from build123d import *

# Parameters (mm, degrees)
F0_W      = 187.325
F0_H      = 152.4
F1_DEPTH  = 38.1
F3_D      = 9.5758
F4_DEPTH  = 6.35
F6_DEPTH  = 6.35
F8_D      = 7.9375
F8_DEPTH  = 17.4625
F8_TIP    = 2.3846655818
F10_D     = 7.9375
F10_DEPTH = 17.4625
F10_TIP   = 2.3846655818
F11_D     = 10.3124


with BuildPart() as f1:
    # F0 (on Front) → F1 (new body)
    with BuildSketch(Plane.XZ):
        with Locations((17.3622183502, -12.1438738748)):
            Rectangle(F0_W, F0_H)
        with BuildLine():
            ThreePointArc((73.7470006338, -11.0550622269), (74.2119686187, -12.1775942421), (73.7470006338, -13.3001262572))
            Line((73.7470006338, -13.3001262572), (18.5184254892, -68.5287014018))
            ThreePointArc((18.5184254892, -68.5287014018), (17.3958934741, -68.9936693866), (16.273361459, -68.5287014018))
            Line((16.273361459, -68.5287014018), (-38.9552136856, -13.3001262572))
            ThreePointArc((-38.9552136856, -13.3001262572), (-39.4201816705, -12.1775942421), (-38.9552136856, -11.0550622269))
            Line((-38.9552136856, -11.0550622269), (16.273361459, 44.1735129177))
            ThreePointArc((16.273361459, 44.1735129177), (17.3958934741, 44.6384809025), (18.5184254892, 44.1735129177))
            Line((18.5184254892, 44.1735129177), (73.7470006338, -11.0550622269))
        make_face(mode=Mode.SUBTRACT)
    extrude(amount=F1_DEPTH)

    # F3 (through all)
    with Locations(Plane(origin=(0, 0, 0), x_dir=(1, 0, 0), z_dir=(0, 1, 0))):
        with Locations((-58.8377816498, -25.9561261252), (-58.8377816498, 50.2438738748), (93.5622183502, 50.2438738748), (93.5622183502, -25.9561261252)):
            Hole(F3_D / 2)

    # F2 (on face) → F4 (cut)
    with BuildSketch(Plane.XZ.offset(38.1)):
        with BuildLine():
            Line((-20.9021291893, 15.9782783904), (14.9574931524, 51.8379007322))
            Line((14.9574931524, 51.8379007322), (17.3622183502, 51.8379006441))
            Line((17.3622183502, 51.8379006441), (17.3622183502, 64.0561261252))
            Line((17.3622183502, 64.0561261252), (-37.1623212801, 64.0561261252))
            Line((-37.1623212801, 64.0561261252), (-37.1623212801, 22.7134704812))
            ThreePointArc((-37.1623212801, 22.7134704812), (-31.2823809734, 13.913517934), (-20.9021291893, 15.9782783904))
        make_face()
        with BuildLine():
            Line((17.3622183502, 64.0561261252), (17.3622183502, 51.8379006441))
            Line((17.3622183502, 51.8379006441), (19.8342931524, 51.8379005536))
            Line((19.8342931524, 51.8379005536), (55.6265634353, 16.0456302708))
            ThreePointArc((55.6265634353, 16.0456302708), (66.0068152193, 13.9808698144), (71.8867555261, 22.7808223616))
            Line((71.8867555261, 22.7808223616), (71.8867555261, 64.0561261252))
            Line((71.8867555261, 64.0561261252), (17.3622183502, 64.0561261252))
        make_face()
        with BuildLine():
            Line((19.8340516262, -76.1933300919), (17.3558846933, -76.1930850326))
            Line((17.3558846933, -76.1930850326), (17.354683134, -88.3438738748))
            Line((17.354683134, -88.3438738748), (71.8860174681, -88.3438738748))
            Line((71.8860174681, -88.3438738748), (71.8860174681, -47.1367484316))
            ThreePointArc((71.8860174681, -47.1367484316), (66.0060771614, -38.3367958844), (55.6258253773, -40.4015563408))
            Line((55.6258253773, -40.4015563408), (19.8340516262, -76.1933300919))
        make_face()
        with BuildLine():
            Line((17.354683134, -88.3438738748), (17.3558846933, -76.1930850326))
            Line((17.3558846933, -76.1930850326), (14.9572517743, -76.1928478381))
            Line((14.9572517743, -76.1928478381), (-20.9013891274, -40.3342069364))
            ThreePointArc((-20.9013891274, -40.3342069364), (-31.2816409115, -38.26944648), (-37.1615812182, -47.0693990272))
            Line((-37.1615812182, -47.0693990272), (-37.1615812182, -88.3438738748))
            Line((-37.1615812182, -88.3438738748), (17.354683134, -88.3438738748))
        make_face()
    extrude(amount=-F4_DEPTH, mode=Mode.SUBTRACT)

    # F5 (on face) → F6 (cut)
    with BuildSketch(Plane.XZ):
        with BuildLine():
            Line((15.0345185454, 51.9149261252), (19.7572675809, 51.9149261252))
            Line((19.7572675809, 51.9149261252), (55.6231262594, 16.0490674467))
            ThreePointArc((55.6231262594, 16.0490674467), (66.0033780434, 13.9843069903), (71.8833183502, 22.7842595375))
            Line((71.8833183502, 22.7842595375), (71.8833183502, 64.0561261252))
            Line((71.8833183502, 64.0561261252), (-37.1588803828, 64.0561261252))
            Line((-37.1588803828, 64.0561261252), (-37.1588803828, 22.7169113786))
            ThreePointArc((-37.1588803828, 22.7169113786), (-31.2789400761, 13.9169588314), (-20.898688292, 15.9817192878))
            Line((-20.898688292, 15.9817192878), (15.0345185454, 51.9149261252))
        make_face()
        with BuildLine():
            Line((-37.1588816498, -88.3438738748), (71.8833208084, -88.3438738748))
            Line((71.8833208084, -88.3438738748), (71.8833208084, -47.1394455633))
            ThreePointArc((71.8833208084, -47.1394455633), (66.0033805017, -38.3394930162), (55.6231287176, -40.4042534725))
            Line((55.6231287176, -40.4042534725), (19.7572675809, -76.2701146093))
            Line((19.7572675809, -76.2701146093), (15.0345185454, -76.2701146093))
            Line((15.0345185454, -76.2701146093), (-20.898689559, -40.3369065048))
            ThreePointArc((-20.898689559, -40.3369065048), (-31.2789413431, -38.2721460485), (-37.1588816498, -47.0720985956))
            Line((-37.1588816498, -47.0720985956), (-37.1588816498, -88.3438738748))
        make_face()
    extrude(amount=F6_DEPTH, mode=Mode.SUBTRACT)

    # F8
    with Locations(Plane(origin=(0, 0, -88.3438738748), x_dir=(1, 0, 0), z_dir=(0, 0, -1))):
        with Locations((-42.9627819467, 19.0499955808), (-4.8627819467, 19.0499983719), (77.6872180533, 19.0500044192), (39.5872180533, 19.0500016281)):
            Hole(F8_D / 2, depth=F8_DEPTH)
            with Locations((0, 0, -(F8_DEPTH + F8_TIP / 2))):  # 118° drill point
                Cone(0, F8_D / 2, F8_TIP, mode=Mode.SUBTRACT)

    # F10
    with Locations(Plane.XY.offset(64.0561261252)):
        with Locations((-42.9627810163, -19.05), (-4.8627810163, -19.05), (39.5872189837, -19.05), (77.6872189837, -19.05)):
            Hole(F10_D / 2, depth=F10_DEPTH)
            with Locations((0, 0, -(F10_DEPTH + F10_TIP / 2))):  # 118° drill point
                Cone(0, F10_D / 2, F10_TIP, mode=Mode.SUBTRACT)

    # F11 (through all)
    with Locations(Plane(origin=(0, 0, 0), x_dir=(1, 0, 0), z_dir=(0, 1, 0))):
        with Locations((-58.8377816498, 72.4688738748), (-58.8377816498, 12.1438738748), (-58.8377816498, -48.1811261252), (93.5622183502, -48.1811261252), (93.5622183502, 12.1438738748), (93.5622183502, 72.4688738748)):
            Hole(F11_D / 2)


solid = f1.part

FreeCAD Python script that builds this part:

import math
import FreeCAD as App
import Part
import Sketcher
Q = App.Units.Quantity


def add_polygon(sketch, points):
    """Adds a closed chain of lines whose ends are joined by coincident constraints."""
    first, n = sketch.GeometryCount, len(points)
    for a, b in zip(points, points[1:] + points[:1]):
        sketch.addGeometry(Part.LineSegment(App.Vector(*a, 0), App.Vector(*b, 0)), False)
    for i in range(n):
        sketch.addConstraint(Sketcher.Constraint("Coincident", first + i, 2, first + (i + 1) % n, 1))

doc = App.newDocument("Part")
body = doc.addObject("PartDesign::Body", "Body")

sketch1 = body.newObject("Sketcher::SketchObject", "Sketch")
sketch1.AttachmentSupport = (doc.getObject("XZ_Plane"), [""])
sketch1.MapMode = "FlatFace"
add_polygon(sketch1, [(-76.3, 64.1), (-76.3, -88.3), (111, -88.3), (111, 64.1)])
sketch1.addGeometry(Part.LineSegment(App.Vector(18.5, 44.2, 0), App.Vector(73.7, -11.1, 0)), False)
sketch1.addGeometry(Part.ArcOfCircle(Part.Circle(App.Vector(72.6, -12.2, 0), App.Vector(0, 0, 1), 1.6), math.radians(-45), math.radians(45)), False)
sketch1.addGeometry(Part.LineSegment(App.Vector(73.7, -13.3, 0), App.Vector(18.5, -68.5, 0)), False)
sketch1.addGeometry(Part.ArcOfCircle(Part.Circle(App.Vector(17.4, -67.4, 0), App.Vector(0, 0, 1), 1.6), math.radians(-135), math.radians(-45)), False)
sketch1.addGeometry(Part.LineSegment(App.Vector(16.3, -68.5, 0), App.Vector(-39, -13.3, 0)), False)
sketch1.addGeometry(Part.ArcOfCircle(Part.Circle(App.Vector(-37.8, -12.2, 0), App.Vector(0, 0, 1), 1.6), math.radians(135), math.radians(225)), False)
sketch1.addGeometry(Part.LineSegment(App.Vector(-39, -11.1, 0), App.Vector(16.3, 44.2, 0)), False)
sketch1.addGeometry(Part.ArcOfCircle(Part.Circle(App.Vector(17.4, 43.1, 0), App.Vector(0, 0, 1), 1.6), math.radians(45), math.radians(135)), False)
sketch1.addConstraint([
    Sketcher.Constraint("Tangent", 4, 2, 5, 2),
    Sketcher.Constraint("Tangent", 5, 1, 6, 1),
    Sketcher.Constraint("Tangent", 6, 2, 7, 2),
    Sketcher.Constraint("Tangent", 7, 1, 8, 1),
    Sketcher.Constraint("Tangent", 8, 2, 9, 2),
    Sketcher.Constraint("Tangent", 9, 1, 10, 1),
    Sketcher.Constraint("Tangent", 10, 2, 11, 2),
    Sketcher.Constraint("Tangent", 11, 1, 4, 1),
    Sketcher.Constraint("Vertical", 0),
    Sketcher.Constraint("Horizontal", 1),
    Sketcher.Constraint("Vertical", 2),
    Sketcher.Constraint("Horizontal", 3),
    Sketcher.Constraint("Equal", 5, 7),
    Sketcher.Constraint("Equal", 7, 9),
    Sketcher.Constraint("Equal", 9, 11),
    Sketcher.Constraint("Perpendicular", 4, 6),
    Sketcher.Constraint("Perpendicular", 6, 8),
    Sketcher.Constraint("Perpendicular", 8, 10),
    Sketcher.Constraint("Horizontal", 5, 3, 9, 3),
    Sketcher.Constraint("Horizontal", 6, 2, 7, 1),
    Sketcher.Constraint("DistanceY", 0, 2, 0, 1, Q("6 in")),
    Sketcher.Constraint("Radius", 5, Q("0.0625 in")),
    Sketcher.Constraint("DistanceX", 1, 1, 1, 2, Q("7.375 in")),
    Sketcher.Constraint("Distance", 4, Q("3.075 in")),
    Sketcher.Constraint("DistanceX", -1, 1, 4, 2, 73.747001),
    Sketcher.Constraint("DistanceY", 6, 2, -1, 1, 68.528701),
    Sketcher.Constraint("DistanceX", 0, 2, 9, 3, 38.4676),
    Sketcher.Constraint("DistanceY", 0, 2, 9, 3, 76.16628),
])
pad1 = body.newObject("PartDesign::Pad", "Pad")
pad1.Profile = sketch1
pad1.Length = Q("1.5 in")

sketch2 = body.newObject("Sketcher::SketchObject", "Sketch001")
sketch2.AttachmentSupport = (doc.getObject("XZ_Plane"), [""])
sketch2.MapMode = "FlatFace"
sketch2.addGeometry([
    Part.Circle(App.Vector(-58.8, 26, 0), App.Vector(0, 0, 1), 4.8),
    Part.Circle(App.Vector(-58.8, -50.2, 0), App.Vector(0, 0, 1), 4.8),
    Part.Circle(App.Vector(93.6, -50.2, 0), App.Vector(0, 0, 1), 4.8),
    Part.Circle(App.Vector(93.6, 26, 0), App.Vector(0, 0, 1), 4.8),
], False)
sketch2.addConstraint([
    Sketcher.Constraint("Equal", 0, 1),
    Sketcher.Constraint("Equal", 1, 2),
    Sketcher.Constraint("Equal", 2, 3),
    Sketcher.Constraint("Horizontal", 1, 3, 2, 3),
    Sketcher.Constraint("Horizontal", 0, 3, 3, 3),
    Sketcher.Constraint("Vertical", 0, 3, 1, 3),
    Sketcher.Constraint("Vertical", 2, 3, 3, 3),
    Sketcher.Constraint("Diameter", 0, Q("0.377 in")),
    Sketcher.Constraint("DistanceY", 1, 3, 0, 3, Q("3 in")),
    Sketcher.Constraint("DistanceX", 1, 3, 2, 3, Q("6 in")),
    Sketcher.Constraint("DistanceX", 0, 3, -1, 1, 58.837782),
    Sketcher.Constraint("DistanceY", -1, 1, 0, 3, 25.956126),
])
doc.recompute()
hole = body.newObject("PartDesign::Hole", "Hole")
hole.Profile = sketch2
hole.ThreadType = "None"
hole.Diameter = Q("0.377 in")
hole.DepthType = "ThroughAll"
hole.Reversed = True

sketch3 = body.newObject("Sketcher::SketchObject", "Sketch002")
sketch3.AttachmentSupport = (doc.getObject("XZ_Plane"), [""])
sketch3.MapMode = "FlatFace"
sketch3.AttachmentOffset = App.Placement(App.Vector(0, 0, 1.5 * 25.4), App.Rotation())
sketch3.addGeometry([
    Part.LineSegment(App.Vector(-20.9, 16, 0), App.Vector(15, 51.8, 0)),
    Part.LineSegment(App.Vector(15, 51.8, 0), App.Vector(17.4, 51.8, 0)),
    Part.LineSegment(App.Vector(17.4, 51.8, 0), App.Vector(19.8, 51.8, 0)),
    Part.LineSegment(App.Vector(19.8, 51.8, 0), App.Vector(55.6, 16, 0)),
    Part.ArcOfCircle(Part.Circle(App.Vector(62.4, 22.8, 0), App.Vector(0, 0, 1), 9.5), math.radians(-135), math.radians(0)),
    Part.LineSegment(App.Vector(71.9, 22.8, 0), App.Vector(71.9, 64.1, 0)),
    Part.LineSegment(App.Vector(71.9, 64.1, 0), App.Vector(-37.2, 64.1, 0)),
    Part.LineSegment(App.Vector(-37.2, 64.1, 0), App.Vector(-37.2, 22.7, 0)),
    Part.ArcOfCircle(Part.Circle(App.Vector(-27.6, 22.7, 0), App.Vector(0, 0, 1), 9.5), math.radians(180), math.radians(315)),
    Part.LineSegment(App.Vector(19.8, -76.2, 0), App.Vector(17.4, -76.2, 0)),
    Part.LineSegment(App.Vector(17.4, -76.2, 0), App.Vector(15, -76.2, 0)),
    Part.LineSegment(App.Vector(15, -76.2, 0), App.Vector(-20.9, -40.3, 0)),
    Part.ArcOfCircle(Part.Circle(App.Vector(-27.6, -47.1, 0), App.Vector(0, 0, 1), 9.5), math.radians(45), math.radians(180)),
    Part.LineSegment(App.Vector(-37.2, -47.1, 0), App.Vector(-37.2, -88.3, 0)),
    Part.LineSegment(App.Vector(-37.2, -88.3, 0), App.Vector(71.9, -88.3, 0)),
    Part.LineSegment(App.Vector(71.9, -88.3, 0), App.Vector(71.9, -47.1, 0)),
    Part.ArcOfCircle(Part.Circle(App.Vector(62.4, -47.1, 0), App.Vector(0, 0, 1), 9.5), math.radians(0), math.radians(135)),
    Part.LineSegment(App.Vector(55.6, -40.4, 0), App.Vector(19.8, -76.2, 0)),
], False)
sketch3.addConstraint([
    Sketcher.Constraint("Coincident", 0, 2, 1, 1),
    Sketcher.Constraint("Coincident", 1, 2, 2, 1),
    Sketcher.Constraint("Coincident", 2, 2, 3, 1),
    Sketcher.Constraint("Tangent", 3, 2, 4, 1),
    Sketcher.Constraint("Tangent", 4, 2, 5, 1),
    Sketcher.Constraint("Coincident", 5, 2, 6, 1),
    Sketcher.Constraint("Coincident", 6, 2, 7, 1),
    Sketcher.Constraint("Tangent", 7, 2, 8, 1),
    Sketcher.Constraint("Tangent", 8, 2, 0, 1),
    Sketcher.Constraint("Coincident", 9, 2, 10, 1),
    Sketcher.Constraint("Coincident", 10, 2, 11, 1),
    Sketcher.Constraint("Tangent", 11, 2, 12, 1),
    Sketcher.Constraint("Tangent", 12, 2, 13, 1),
    Sketcher.Constraint("Coincident", 13, 2, 14, 1),
    Sketcher.Constraint("Coincident", 14, 2, 15, 1),
    Sketcher.Constraint("Tangent", 15, 2, 16, 1),
    Sketcher.Constraint("Tangent", 16, 2, 17, 1),
    Sketcher.Constraint("Coincident", 17, 2, 9, 1),
    Sketcher.Constraint("Horizontal", 1),
    Sketcher.Constraint("Horizontal", 2),
    Sketcher.Constraint("Vertical", 5),
    Sketcher.Constraint("Horizontal", 6),
    Sketcher.Constraint("Vertical", 7),
    Sketcher.Constraint("Vertical", 13),
    Sketcher.Constraint("Horizontal", 14),
    Sketcher.Constraint("Vertical", 15),
    Sketcher.Constraint("Equal", 4, 8),
    Sketcher.Constraint("Equal", 8, 12),
    Sketcher.Constraint("Equal", 12, 16),
    Sketcher.Constraint("Perpendicular", 0, 3),
    Sketcher.Constraint("Parallel", 9, 10),
    Sketcher.Constraint("Parallel", 3, 11),
    Sketcher.Constraint("Perpendicular", 11, 17),
    Sketcher.Constraint("Angle", 0, Q("45 deg")),
    Sketcher.Constraint("Radius", 4, Q("0.375 in")),
    Sketcher.Constraint("DistanceX", 0, 2, 2, 2, Q("0.192 in")),
    Sketcher.Constraint("DistanceX", 10, 2, 17, 2, Q("0.192 in")),
    Sketcher.Constraint("DistanceX", 14, 1, 14, 2, 109.047599),
    Sketcher.Constraint("DistanceY", 12, 3, -1, 1, 47.069399),
    Sketcher.Constraint("DistanceY", -1, 1, 0, 2, 51.837901),
    Sketcher.Constraint("DistanceX", 12, 3, 1, 2, 44.9988),
    Sketcher.Constraint("DistanceY", 10, 2, 16, 3, 29.056099),
    Sketcher.Constraint("Distance", 17, 50.617212),
    Sketcher.Constraint("DistanceX", 1, 1, 1, 2, 2.404725),
    Sketcher.Constraint("DistanceX", 6, 2, 6, 1, 109.049077),
    Sketcher.Constraint("DistanceY", 5, 1, 5, 2, 41.275304),
    Sketcher.Constraint("DistanceY", 7, 2, 7, 1, 41.342656),
    Sketcher.Constraint("DistanceY", 13, 2, 13, 1, 41.274475),
    Sketcher.Constraint("DistanceX", 8, 3, -1, 1, 27.637321),
    Sketcher.Constraint("DistanceX", 9, 2, 3, 2, 38.270679),
])
pocket1 = body.newObject("PartDesign::Pocket", "Pocket")
pocket1.Profile = sketch3
pocket1.Length = Q("0.25 in")

sketch4 = body.newObject("Sketcher::SketchObject", "Sketch003")
sketch4.AttachmentSupport = (doc.getObject("XZ_Plane"), [""])
sketch4.MapMode = "FlatFace"
sketch4.addGeometry([
    Part.LineSegment(App.Vector(15, 51.9, 0), App.Vector(19.8, 51.9, 0)),
    Part.LineSegment(App.Vector(19.8, 51.9, 0), App.Vector(55.6, 16, 0)),
    Part.ArcOfCircle(Part.Circle(App.Vector(62.4, 22.8, 0), App.Vector(0, 0, 1), 9.5), math.radians(-135), math.radians(0)),
    Part.LineSegment(App.Vector(71.9, 22.8, 0), App.Vector(71.9, 64.1, 0)),
    Part.LineSegment(App.Vector(71.9, 64.1, 0), App.Vector(-37.2, 64.1, 0)),
    Part.LineSegment(App.Vector(-37.2, 64.1, 0), App.Vector(-37.2, 22.7, 0)),
    Part.ArcOfCircle(Part.Circle(App.Vector(-27.6, 22.7, 0), App.Vector(0, 0, 1), 9.5), math.radians(180), math.radians(315)),
    Part.LineSegment(App.Vector(-20.9, 16, 0), App.Vector(15, 51.9, 0)),
    Part.LineSegment(App.Vector(-37.2, -88.3, 0), App.Vector(71.9, -88.3, 0)),
    Part.LineSegment(App.Vector(71.9, -88.3, 0), App.Vector(71.9, -47.1, 0)),
    Part.ArcOfCircle(Part.Circle(App.Vector(62.4, -47.1, 0), App.Vector(0, 0, 1), 9.5), math.radians(0), math.radians(135)),
    Part.LineSegment(App.Vector(55.6, -40.4, 0), App.Vector(19.8, -76.3, 0)),
    Part.LineSegment(App.Vector(19.8, -76.3, 0), App.Vector(15, -76.3, 0)),
    Part.LineSegment(App.Vector(15, -76.3, 0), App.Vector(-20.9, -40.3, 0)),
    Part.ArcOfCircle(Part.Circle(App.Vector(-27.6, -47.1, 0), App.Vector(0, 0, 1), 9.5), math.radians(45), math.radians(180)),
    Part.LineSegment(App.Vector(-37.2, -47.1, 0), App.Vector(-37.2, -88.3, 0)),
], False)
sketch4.addConstraint([
    Sketcher.Constraint("Coincident", 0, 2, 1, 1),
    Sketcher.Constraint("Tangent", 1, 2, 2, 1),
    Sketcher.Constraint("Tangent", 2, 2, 3, 1),
    Sketcher.Constraint("Coincident", 3, 2, 4, 1),
    Sketcher.Constraint("Coincident", 4, 2, 5, 1),
    Sketcher.Constraint("Tangent", 5, 2, 6, 1),
    Sketcher.Constraint("Tangent", 6, 2, 7, 1),
    Sketcher.Constraint("Coincident", 7, 2, 0, 1),
    Sketcher.Constraint("Coincident", 8, 2, 9, 1),
    Sketcher.Constraint("Tangent", 9, 2, 10, 1),
    Sketcher.Constraint("Tangent", 10, 2, 11, 1),
    Sketcher.Constraint("Coincident", 11, 2, 12, 1),
    Sketcher.Constraint("Coincident", 12, 2, 13, 1),
    Sketcher.Constraint("Tangent", 13, 2, 14, 1),
    Sketcher.Constraint("Tangent", 14, 2, 15, 1),
    Sketcher.Constraint("Coincident", 15, 2, 8, 1),
    Sketcher.Constraint("Horizontal", 0),
    Sketcher.Constraint("Vertical", 3),
    Sketcher.Constraint("Horizontal", 4),
    Sketcher.Constraint("Vertical", 5),
    Sketcher.Constraint("Horizontal", 8),
    Sketcher.Constraint("Vertical", 9),
    Sketcher.Constraint("Horizontal", 12),
    Sketcher.Constraint("Vertical", 15),
    Sketcher.Constraint("Equal", 2, 6),
    Sketcher.Constraint("Equal", 6, 10),
    Sketcher.Constraint("Equal", 10, 14),
    Sketcher.Constraint("Perpendicular", 1, 7),
    Sketcher.Constraint("Parallel", 7, 11),
    Sketcher.Constraint("Perpendicular", 11, 13),
    Sketcher.Constraint("Vertical", 6, 3, 14, 3),
    Sketcher.Constraint("Vertical", 0, 2, 11, 2),
    Sketcher.Constraint("Vertical", 7, 2, 12, 2),
    Sketcher.Constraint("Vertical", 6, 2, 13, 2),
    Sketcher.Constraint("Radius", 2, Q("0.375 in")),
    Sketcher.Constraint("DistanceX", 4, 2, 4, 1, Q("4.293 in")),
    Sketcher.Constraint("DistanceX", 8, 1, 8, 2, Q("4.2930001 in")),
    Sketcher.Constraint("DistanceY", 0, 2, 3, 2, Q("0.478 in")),
    Sketcher.Constraint("DistanceX", 0, 1, 0, 2, 4.722749),
    Sketcher.Constraint("DistanceY", 9, 1, 9, 2, 41.204428),
    Sketcher.Constraint("DistanceY", 14, 3, -1, 1, 47.072099),
    Sketcher.Constraint("DistanceX", 6, 3, 7, 2, 42.668399),
    Sketcher.Constraint("DistanceX", -1, 1, 2, 3, 62.358318),
    Sketcher.Constraint("DistanceY", -1, 1, 2, 3, 22.78426),
])
pocket2 = body.newObject("PartDesign::Pocket", "Pocket001")
pocket2.Profile = sketch4
pocket2.Length = Q("0.25 in")
pocket2.Reversed = True

sketch5 = body.newObject("Sketcher::SketchObject", "Sketch004")
sketch5.AttachmentSupport = (doc.getObject("XY_Plane"), [""])
sketch5.MapMode = "FlatFace"
sketch5.AttachmentOffset = App.Placement(App.Vector(0, 0, -88.343874), App.Rotation())
sketch5.addGeometry([
    Part.Circle(App.Vector(-43, -19, 0), App.Vector(0, 0, 1), 4),
    Part.Circle(App.Vector(-4.9, -19, 0), App.Vector(0, 0, 1), 4),
    Part.Circle(App.Vector(77.7, -19.1, 0), App.Vector(0, 0, 1), 4),
    Part.Circle(App.Vector(39.6, -19.1, 0), App.Vector(0, 0, 1), 4),
], False)
sketch5.addConstraint([
    Sketcher.Constraint("Equal", 0, 1),
    Sketcher.Constraint("Equal", 1, 2),
    Sketcher.Constraint("Equal", 2, 3),
    Sketcher.Constraint("Diameter", 0, Q("0.3125 in")),
    Sketcher.Constraint("DistanceX", 0, 3, 1, 3, Q("1.5 in")),
    Sketcher.Constraint("DistanceX", 3, 3, 2, 3, Q("1.5 in")),
    Sketcher.Constraint("DistanceY", 0, 3, -1, 1, Q("0.7499998 in")),
    Sketcher.Constraint("DistanceY", 1, 3, -1, 1, Q("0.7499999 in")),
    Sketcher.Constraint("DistanceY", 2, 3, -1, 1, Q("0.7500002 in")),
    Sketcher.Constraint("DistanceY", 3, 3, -1, 1, Q("0.7500001 in")),
    Sketcher.Constraint("DistanceX", 1, 3, 2, 3, Q("3.25 in")),
    Sketcher.Constraint("DistanceX", 0, 3, -1, 1, 42.962782),
])
doc.recompute()
hole2 = body.newObject("PartDesign::Hole", "Hole001")
hole2.Profile = sketch5
hole2.ThreadType = "None"
hole2.Diameter = Q("0.3125 in")
hole2.DepthType = "Dimension"
hole2.Depth = Q("0.6875 in")
hole2.DrillPoint = "Angled"
hole2.DrillPointAngle = 118
hole2.Reversed = True

sketch6 = body.newObject("Sketcher::SketchObject", "Sketch005")
sketch6.AttachmentSupport = (doc.getObject("XY_Plane"), [""])
sketch6.MapMode = "FlatFace"
sketch6.AttachmentOffset = App.Placement(App.Vector(0, 0, 64.056126), App.Rotation())
sketch6.addGeometry([
    Part.Circle(App.Vector(-43, -19.1, 0), App.Vector(0, 0, 1), 4),
    Part.Circle(App.Vector(-4.9, -19.1, 0), App.Vector(0, 0, 1), 4),
    Part.Circle(App.Vector(39.6, -19.1, 0), App.Vector(0, 0, 1), 4),
    Part.Circle(App.Vector(77.7, -19.1, 0), App.Vector(0, 0, 1), 4),
], False)
sketch6.addConstraint([
    Sketcher.Constraint("Equal", 0, 1),
    Sketcher.Constraint("Equal", 1, 2),
    Sketcher.Constraint("Equal", 2, 3),
    Sketcher.Constraint("Horizontal", 0, 3, 1, 3),
    Sketcher.Constraint("Horizontal", 1, 3, 2, 3),
    Sketcher.Constraint("Horizontal", 2, 3, 3, 3),
    Sketcher.Constraint("Diameter", 0, Q("0.3125 in")),
    Sketcher.Constraint("DistanceX", 0, 3, 1, 3, Q("1.5 in")),
    Sketcher.Constraint("DistanceX", 2, 3, 3, 3, Q("1.5 in")),
    Sketcher.Constraint("DistanceY", 0, 3, -1, 1, Q("0.75 in")),
    Sketcher.Constraint("DistanceX", 1, 3, 2, 3, Q("1.75 in")),
    Sketcher.Constraint("DistanceX", 0, 3, -1, 1, 42.962781),
])
doc.recompute()
hole3 = body.newObject("PartDesign::Hole", "Hole002")
hole3.Profile = sketch6
hole3.ThreadType = "None"
hole3.Diameter = Q("0.3125 in")
hole3.DepthType = "Dimension"
hole3.Depth = Q("0.6875 in")
hole3.DrillPoint = "Angled"
hole3.DrillPointAngle = 118

sketch7 = body.newObject("Sketcher::SketchObject", "Sketch006")
sketch7.AttachmentSupport = (doc.getObject("XZ_Plane"), [""])
sketch7.MapMode = "FlatFace"
sketch7.addGeometry([
    Part.Circle(App.Vector(-59, -72, 0), App.Vector(0, 0, 1), 5),
    Part.Circle(App.Vector(-59, -12, 0), App.Vector(0, 0, 1), 5),
    Part.Circle(App.Vector(-59, 48, 0), App.Vector(0, 0, 1), 5),
    Part.Circle(App.Vector(94, 48, 0), App.Vector(0, 0, 1), 5),
    Part.Circle(App.Vector(94, -12, 0), App.Vector(0, 0, 1), 5),
    Part.Circle(App.Vector(94, -72, 0), App.Vector(0, 0, 1), 5),
], False)
sketch7.addConstraint([
    Sketcher.Constraint("Equal", 0, 1),
    Sketcher.Constraint("Equal", 1, 2),
    Sketcher.Constraint("Equal", 2, 3),
    Sketcher.Constraint("Equal", 3, 4),
    Sketcher.Constraint("Equal", 4, 5),
    Sketcher.Constraint("Horizontal", 2, 3, 3, 3),
    Sketcher.Constraint("Horizontal", 1, 3, 4, 3),
    Sketcher.Constraint("Horizontal", 0, 3, 5, 3),
    Sketcher.Constraint("Vertical", 0, 3, 1, 3),
    Sketcher.Constraint("Vertical", 1, 3, 2, 3),
    Sketcher.Constraint("Vertical", 3, 3, 4, 3),
    Sketcher.Constraint("Vertical", 4, 3, 5, 3),
    Sketcher.Constraint("Diameter", 0, Q("0.406 in")),
    Sketcher.Constraint("DistanceX", 2, 3, 3, 3, Q("6 in")),
    Sketcher.Constraint("DistanceY", 0, 3, 2, 3, Q("4.75 in")),
    Sketcher.Constraint("DistanceY", 0, 3, 1, 3, Q("2.375 in")),
    Sketcher.Constraint("DistanceX", 0, 3, -1, 1, 58.837782),
    Sketcher.Constraint("DistanceY", 0, 3, -1, 1, 72.468874),
])
doc.recompute()
hole4 = body.newObject("PartDesign::Hole", "Hole003")
hole4.Profile = sketch7
hole4.ThreadType = "None"
hole4.Diameter = Q("0.406 in")
hole4.DepthType = "ThroughAll"
hole4.Reversed = True

doc.recompute()
